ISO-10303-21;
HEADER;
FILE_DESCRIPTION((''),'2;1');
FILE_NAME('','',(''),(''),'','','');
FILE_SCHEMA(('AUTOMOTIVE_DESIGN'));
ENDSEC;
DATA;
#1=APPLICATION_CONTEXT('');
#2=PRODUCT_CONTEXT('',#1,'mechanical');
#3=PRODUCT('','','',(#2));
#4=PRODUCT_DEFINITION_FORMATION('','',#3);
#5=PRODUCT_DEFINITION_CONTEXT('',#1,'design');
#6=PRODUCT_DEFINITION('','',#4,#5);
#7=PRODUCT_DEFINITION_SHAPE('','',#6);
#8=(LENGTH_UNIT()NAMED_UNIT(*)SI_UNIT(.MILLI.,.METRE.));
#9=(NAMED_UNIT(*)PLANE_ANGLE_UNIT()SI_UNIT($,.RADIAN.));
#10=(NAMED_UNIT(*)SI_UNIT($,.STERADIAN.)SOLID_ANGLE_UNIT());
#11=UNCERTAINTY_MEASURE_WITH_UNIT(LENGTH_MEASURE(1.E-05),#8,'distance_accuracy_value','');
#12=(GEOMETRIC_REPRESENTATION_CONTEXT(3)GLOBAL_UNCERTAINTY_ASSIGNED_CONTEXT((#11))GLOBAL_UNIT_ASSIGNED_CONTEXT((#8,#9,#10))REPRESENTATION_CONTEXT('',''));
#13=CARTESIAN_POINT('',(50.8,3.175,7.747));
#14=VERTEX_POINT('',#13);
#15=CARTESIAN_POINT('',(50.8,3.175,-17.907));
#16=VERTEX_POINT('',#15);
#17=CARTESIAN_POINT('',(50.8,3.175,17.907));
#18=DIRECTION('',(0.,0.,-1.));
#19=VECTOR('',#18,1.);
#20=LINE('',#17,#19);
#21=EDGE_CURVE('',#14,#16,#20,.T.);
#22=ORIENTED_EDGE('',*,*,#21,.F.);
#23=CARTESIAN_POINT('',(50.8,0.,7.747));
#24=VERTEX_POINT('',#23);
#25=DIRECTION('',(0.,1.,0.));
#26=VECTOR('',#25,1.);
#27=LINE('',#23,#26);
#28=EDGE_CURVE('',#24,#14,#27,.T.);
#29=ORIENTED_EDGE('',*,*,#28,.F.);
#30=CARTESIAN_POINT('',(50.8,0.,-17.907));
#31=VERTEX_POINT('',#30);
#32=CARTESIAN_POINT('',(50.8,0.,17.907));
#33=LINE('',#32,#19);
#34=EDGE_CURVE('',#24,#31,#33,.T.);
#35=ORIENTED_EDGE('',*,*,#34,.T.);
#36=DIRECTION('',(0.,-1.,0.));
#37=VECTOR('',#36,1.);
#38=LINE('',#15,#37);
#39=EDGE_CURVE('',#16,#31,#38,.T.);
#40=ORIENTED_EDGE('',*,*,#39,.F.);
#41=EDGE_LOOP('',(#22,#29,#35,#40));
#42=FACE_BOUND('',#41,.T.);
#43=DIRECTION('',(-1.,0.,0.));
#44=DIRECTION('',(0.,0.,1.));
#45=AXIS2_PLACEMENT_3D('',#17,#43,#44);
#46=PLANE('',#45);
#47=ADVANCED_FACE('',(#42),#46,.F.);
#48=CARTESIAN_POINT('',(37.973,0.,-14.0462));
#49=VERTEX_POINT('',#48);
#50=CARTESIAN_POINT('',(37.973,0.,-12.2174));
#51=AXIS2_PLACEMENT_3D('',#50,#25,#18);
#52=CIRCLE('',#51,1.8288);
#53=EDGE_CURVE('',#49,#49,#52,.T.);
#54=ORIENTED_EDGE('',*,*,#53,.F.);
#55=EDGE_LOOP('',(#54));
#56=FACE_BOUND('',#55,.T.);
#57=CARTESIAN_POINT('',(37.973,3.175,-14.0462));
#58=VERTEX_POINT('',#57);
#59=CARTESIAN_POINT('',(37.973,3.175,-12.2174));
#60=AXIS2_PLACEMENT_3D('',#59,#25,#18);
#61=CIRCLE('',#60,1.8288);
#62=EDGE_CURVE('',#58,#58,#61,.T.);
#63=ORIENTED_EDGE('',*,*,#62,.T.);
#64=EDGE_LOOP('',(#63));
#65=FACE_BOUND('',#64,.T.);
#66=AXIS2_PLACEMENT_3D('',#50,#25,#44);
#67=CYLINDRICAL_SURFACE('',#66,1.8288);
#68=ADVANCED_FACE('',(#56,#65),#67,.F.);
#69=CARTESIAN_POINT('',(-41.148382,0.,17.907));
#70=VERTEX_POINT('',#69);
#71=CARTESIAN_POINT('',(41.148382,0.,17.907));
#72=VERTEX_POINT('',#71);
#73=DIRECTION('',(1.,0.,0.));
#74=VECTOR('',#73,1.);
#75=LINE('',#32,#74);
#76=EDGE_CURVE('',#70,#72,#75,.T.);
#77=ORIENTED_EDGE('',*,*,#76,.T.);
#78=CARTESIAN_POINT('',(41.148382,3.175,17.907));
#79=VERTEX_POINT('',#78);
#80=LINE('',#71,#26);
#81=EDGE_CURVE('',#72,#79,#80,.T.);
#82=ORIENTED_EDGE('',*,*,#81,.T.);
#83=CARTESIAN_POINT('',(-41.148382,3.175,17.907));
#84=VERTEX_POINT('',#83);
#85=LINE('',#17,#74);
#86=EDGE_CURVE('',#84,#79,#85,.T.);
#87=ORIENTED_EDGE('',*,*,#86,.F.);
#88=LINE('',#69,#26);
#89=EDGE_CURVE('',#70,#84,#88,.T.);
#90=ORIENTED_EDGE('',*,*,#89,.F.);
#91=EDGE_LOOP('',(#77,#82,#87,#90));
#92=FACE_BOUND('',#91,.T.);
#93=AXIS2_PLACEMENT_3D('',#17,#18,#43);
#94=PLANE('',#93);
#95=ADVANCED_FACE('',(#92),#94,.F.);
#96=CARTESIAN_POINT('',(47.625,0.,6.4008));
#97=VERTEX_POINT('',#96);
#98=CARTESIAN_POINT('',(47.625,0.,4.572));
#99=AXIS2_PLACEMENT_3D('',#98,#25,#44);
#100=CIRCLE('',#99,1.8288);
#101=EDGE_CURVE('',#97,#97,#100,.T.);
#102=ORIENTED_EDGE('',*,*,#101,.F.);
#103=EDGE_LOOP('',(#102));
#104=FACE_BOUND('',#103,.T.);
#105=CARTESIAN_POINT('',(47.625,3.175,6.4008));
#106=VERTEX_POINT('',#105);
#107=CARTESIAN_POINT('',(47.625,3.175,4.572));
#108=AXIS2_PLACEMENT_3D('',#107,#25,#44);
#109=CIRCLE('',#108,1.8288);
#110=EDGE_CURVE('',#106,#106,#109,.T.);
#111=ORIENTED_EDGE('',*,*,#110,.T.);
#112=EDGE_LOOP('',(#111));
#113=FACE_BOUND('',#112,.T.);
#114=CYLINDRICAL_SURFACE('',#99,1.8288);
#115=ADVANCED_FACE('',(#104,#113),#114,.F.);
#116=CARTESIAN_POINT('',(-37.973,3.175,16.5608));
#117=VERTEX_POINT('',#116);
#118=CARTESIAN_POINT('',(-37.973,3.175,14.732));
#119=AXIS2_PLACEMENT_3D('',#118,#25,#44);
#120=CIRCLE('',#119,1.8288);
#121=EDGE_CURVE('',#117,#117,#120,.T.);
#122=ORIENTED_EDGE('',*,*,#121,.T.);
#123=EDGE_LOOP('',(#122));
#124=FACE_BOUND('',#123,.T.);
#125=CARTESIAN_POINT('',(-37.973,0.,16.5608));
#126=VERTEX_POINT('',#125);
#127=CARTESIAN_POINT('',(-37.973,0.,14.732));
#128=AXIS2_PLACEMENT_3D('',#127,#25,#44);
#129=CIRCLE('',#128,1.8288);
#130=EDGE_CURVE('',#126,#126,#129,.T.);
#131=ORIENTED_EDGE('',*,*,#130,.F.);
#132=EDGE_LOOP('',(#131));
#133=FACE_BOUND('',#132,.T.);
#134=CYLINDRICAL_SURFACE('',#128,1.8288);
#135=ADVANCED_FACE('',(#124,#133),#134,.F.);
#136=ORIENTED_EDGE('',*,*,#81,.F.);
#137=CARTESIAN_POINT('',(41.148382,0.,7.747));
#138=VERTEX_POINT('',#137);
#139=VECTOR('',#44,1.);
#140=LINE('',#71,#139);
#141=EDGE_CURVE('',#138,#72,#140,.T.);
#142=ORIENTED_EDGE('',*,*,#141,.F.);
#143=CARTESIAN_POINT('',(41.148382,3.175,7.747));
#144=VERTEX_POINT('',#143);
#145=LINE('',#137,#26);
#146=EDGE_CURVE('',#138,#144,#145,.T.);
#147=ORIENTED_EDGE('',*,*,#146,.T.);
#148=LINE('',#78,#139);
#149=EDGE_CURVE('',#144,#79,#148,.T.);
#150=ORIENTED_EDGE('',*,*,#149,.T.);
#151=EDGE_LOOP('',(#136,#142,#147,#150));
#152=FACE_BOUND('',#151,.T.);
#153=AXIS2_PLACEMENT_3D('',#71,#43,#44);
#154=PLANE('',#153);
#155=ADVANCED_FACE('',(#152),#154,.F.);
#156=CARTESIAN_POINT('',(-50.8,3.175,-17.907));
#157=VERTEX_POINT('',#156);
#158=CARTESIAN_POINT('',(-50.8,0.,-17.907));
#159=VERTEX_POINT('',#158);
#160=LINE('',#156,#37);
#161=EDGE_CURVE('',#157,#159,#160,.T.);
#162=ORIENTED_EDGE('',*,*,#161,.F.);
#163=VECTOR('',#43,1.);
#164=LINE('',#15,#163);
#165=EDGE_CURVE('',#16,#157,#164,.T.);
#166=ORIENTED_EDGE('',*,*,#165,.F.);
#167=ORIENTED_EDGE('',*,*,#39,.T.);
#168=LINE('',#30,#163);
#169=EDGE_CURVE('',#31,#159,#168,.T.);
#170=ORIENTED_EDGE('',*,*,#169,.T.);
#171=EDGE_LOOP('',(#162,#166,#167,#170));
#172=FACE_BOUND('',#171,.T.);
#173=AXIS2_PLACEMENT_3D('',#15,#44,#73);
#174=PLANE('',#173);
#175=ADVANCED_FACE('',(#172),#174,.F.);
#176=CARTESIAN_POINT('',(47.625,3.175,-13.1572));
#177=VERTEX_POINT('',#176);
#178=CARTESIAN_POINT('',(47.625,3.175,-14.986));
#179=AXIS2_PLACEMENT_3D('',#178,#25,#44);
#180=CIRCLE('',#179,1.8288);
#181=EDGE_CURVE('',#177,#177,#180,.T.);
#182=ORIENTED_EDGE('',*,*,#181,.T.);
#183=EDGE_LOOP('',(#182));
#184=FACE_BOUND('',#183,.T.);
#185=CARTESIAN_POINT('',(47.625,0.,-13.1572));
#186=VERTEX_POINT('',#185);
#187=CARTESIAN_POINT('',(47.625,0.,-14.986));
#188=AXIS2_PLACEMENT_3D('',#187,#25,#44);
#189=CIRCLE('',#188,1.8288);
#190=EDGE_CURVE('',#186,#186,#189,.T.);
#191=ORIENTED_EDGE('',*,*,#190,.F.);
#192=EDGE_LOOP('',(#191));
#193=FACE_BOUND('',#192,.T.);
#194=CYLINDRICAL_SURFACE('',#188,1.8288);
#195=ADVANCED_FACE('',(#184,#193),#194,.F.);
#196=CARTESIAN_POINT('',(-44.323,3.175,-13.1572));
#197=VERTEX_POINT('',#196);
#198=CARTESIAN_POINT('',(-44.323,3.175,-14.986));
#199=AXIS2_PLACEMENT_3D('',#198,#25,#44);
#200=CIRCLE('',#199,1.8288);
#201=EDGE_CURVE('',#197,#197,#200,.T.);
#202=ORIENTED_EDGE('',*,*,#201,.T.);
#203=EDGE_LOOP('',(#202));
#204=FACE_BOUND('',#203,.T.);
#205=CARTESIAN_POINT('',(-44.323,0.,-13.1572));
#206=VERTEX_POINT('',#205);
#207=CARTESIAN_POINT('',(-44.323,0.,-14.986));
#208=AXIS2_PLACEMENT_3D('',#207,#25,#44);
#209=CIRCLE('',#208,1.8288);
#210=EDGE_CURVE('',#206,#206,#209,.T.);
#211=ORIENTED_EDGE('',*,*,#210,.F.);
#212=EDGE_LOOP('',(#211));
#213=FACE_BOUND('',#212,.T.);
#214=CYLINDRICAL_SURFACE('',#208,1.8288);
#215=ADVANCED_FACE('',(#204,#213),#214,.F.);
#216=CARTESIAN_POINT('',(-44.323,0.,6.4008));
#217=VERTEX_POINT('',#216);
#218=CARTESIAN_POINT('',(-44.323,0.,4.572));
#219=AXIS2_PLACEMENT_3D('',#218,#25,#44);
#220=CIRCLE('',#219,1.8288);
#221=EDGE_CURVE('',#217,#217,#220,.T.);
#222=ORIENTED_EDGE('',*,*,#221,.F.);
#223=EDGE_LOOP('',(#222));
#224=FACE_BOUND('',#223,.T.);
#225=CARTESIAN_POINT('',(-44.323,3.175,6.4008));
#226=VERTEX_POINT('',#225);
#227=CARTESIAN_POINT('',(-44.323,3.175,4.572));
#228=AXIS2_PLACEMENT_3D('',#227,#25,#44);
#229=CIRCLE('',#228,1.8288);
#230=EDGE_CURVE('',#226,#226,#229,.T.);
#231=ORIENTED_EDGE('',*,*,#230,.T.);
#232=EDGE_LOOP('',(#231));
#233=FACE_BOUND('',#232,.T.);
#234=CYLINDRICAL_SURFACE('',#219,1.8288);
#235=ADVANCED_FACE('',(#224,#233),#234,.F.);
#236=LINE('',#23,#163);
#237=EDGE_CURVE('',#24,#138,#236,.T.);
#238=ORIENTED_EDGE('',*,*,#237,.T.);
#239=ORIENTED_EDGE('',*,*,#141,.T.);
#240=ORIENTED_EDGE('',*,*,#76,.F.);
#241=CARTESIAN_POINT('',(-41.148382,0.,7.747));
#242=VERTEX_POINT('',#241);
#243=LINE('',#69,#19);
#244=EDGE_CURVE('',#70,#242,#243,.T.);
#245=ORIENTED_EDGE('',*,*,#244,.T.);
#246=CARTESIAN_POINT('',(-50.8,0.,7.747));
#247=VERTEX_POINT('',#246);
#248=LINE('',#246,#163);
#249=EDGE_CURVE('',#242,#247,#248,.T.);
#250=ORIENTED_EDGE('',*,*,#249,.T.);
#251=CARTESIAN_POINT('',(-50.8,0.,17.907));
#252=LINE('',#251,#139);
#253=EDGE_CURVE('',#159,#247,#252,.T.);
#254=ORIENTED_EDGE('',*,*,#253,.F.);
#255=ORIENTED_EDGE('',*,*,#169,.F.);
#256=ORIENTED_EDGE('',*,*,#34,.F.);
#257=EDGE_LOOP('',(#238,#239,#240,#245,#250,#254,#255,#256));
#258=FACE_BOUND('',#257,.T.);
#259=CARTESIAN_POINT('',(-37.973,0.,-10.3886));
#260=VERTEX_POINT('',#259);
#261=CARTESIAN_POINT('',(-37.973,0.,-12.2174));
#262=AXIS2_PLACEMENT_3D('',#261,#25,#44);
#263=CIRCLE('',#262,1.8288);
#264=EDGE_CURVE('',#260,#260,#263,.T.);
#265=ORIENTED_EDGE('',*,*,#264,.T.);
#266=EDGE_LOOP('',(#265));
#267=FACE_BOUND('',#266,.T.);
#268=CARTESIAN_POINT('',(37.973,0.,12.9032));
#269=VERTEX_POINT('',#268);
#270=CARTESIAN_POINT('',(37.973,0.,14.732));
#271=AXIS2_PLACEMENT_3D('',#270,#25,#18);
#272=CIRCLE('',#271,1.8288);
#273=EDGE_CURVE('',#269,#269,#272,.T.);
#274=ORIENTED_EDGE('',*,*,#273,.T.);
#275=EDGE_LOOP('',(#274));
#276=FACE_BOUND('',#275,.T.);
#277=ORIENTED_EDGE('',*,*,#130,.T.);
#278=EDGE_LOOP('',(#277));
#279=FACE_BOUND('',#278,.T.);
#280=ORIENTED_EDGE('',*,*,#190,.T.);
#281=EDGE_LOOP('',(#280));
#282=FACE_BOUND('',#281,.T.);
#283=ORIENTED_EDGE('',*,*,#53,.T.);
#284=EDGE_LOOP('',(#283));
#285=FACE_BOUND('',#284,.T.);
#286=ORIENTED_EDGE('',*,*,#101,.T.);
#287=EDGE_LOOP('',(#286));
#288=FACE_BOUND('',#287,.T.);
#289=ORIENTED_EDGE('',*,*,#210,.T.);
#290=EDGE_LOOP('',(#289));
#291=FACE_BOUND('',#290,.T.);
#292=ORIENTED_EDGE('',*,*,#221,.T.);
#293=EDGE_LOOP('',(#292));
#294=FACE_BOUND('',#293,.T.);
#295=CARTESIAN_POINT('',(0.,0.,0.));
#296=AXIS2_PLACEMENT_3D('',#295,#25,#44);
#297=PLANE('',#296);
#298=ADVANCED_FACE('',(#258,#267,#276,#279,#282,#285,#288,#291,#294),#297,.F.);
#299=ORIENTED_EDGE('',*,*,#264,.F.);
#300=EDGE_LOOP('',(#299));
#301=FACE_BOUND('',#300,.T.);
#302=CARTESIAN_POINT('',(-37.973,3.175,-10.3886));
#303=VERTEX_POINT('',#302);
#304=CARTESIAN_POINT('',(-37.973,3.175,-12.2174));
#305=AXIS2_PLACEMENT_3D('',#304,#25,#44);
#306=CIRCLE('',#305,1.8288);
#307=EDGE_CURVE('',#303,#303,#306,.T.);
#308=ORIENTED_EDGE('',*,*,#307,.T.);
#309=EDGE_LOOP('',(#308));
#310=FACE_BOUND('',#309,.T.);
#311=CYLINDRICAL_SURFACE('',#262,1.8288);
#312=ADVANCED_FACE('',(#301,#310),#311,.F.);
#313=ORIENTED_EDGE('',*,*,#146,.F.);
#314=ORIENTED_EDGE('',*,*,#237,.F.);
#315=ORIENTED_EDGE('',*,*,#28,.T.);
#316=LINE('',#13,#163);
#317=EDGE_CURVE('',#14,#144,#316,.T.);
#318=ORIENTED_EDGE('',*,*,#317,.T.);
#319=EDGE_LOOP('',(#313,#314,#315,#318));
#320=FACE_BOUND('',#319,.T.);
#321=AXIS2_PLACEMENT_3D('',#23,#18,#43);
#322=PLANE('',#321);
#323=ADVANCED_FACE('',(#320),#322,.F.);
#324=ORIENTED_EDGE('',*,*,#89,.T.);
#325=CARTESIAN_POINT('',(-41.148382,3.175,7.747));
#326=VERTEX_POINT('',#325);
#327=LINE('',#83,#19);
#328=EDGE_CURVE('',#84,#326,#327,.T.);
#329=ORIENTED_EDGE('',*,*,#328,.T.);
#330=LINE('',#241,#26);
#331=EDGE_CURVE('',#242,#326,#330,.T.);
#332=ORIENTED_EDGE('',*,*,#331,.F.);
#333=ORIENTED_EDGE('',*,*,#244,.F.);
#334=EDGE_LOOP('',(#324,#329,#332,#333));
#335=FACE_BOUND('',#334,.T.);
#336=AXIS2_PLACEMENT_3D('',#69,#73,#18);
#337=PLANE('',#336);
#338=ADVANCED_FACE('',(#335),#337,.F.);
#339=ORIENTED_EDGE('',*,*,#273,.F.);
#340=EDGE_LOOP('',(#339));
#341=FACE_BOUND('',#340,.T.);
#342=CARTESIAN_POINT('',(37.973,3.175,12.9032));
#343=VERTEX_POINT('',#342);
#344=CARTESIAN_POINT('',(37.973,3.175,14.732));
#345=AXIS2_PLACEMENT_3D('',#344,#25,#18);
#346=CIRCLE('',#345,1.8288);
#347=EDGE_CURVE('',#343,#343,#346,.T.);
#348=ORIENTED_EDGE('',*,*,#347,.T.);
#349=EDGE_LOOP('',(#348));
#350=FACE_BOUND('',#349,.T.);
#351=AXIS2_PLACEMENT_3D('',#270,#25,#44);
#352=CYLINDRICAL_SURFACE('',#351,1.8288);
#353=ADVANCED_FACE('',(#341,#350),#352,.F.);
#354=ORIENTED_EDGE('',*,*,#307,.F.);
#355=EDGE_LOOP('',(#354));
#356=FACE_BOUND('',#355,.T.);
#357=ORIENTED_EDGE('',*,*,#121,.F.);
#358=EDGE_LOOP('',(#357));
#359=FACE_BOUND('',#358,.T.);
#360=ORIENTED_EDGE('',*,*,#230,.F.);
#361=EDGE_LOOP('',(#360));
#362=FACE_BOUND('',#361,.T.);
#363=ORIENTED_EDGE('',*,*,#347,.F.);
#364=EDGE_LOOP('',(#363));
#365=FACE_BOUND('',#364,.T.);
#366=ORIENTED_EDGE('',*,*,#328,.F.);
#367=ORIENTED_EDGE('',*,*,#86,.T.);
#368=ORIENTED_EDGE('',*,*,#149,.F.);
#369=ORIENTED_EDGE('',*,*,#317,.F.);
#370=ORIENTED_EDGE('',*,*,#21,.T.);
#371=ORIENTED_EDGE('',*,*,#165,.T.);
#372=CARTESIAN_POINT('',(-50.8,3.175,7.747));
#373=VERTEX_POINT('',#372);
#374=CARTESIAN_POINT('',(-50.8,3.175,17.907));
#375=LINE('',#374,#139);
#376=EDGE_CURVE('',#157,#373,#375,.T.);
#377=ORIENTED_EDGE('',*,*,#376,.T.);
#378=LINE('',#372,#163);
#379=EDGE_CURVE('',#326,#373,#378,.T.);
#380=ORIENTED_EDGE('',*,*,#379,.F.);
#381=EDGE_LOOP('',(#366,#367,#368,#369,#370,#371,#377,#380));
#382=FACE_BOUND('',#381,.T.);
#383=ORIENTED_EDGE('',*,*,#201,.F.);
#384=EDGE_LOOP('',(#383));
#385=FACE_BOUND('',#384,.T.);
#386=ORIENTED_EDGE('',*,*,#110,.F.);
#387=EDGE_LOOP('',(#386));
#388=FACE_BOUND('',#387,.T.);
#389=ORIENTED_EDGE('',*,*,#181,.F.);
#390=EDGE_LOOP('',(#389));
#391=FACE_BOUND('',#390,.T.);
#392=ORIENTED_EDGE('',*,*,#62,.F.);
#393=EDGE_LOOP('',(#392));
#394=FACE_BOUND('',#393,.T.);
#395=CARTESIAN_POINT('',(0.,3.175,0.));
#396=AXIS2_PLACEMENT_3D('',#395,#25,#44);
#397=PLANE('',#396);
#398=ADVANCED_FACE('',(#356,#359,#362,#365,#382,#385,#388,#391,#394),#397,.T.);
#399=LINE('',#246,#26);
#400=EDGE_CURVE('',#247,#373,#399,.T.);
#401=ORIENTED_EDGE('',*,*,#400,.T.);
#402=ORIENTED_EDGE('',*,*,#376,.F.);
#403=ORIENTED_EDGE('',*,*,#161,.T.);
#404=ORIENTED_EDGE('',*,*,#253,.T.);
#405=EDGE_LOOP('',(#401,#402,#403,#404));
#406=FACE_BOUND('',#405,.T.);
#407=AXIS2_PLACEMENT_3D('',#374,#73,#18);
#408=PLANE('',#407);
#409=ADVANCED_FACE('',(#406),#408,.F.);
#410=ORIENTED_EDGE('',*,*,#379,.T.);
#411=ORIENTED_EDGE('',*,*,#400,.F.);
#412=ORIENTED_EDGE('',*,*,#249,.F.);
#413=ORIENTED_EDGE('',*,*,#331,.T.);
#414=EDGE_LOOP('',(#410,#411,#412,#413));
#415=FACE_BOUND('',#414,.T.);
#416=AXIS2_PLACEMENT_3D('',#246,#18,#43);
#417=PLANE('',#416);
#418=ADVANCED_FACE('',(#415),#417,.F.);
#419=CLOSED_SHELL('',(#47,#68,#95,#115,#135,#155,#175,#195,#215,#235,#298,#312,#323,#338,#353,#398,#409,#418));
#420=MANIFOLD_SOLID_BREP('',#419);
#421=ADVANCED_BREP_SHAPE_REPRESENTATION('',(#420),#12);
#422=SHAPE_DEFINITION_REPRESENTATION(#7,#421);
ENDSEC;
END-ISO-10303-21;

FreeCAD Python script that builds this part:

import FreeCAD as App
import Part
import Sketcher
from FreeCAD import Vector
Q = App.Units.Quantity


def add_polygon(sketch, points):
    """Adds a closed chain of lines whose ends are joined by coincident constraints."""
    first, n = sketch.GeometryCount, len(points)
    for a, b in zip(points, points[1:] + points[:1]):
        sketch.addGeometry(Part.LineSegment(App.Vector(*a, 0), App.Vector(*b, 0)), False)
    for i in range(n):
        sketch.addConstraint(Sketcher.Constraint("Coincident", first + i, 2, first + (i + 1) % n, 1))

doc = App.newDocument("Part")
body = doc.addObject("PartDesign::Body", "Body")

# Sketch on XZ plane
sketch1 = body.newObject("Sketcher::SketchObject", "Sketch")
sketch1.AttachmentSupport = (doc.getObject("XZ_Plane"), [""])
sketch1.MapMode = "FlatFace"
add_polygon(sketch1, [(-51, -18), (-51, 18), (51, 18), (51, -18)])  # lines 0-3
sketch1.addConstraint([
    Sketcher.Constraint("Vertical", 0),
    Sketcher.Constraint("Horizontal", 1),
    Sketcher.Constraint("Vertical", 2),
    Sketcher.Constraint("Horizontal", 3),
    Sketcher.Constraint("Symmetric", 0, 2, 2, 2, -1, 1),
    Sketcher.Constraint("DistanceX", 1, 1, 1, 2, Q("4 in")),
    Sketcher.Constraint("DistanceY", 0, 1, 0, 2, Q("1.41 in")),
])
pad1 = body.newObject("PartDesign::Pad", "Pad")
pad1.Profile = sketch1
pad1.Length = Q("0.125 in")
pad1.Reversed = True

# Sketch on XZ plane
sketch2 = body.newObject("Sketcher::SketchObject", "Sketch001")
sketch2.AttachmentSupport = (doc.getObject("XZ_Plane"), [""])
sketch2.MapMode = "FlatFace"
sketch2.AttachmentOffset = App.Placement(Vector(0, 0, -0.125 * 25.4), App.Rotation())
sketch2.addGeometry([
    Part.Circle(Vector(47.6, -15, 0), Vector(0, 0, 1), 1.8),
    Part.Circle(Vector(47.6, 4.6, 0), Vector(0, 0, 1), 1.8),
    Part.Circle(Vector(-44.3, -15, 0), Vector(0, 0, 1), 1.8),
    Part.Circle(Vector(-44.3, 4.6, 0), Vector(0, 0, 1), 1.8),
], False)
sketch2.addConstraint([
    Sketcher.Constraint("Equal", 0, 1),
    Sketcher.Constraint("Equal", 1, 2),
    Sketcher.Constraint("Equal", 2, 3),
    Sketcher.Constraint("Horizontal", 0, 3, 2, 3),
    Sketcher.Constraint("Horizontal", 1, 3, 3, 3),
    Sketcher.Constraint("Vertical", 0, 3, 1, 3),
    Sketcher.Constraint("Vertical", 2, 3, 3, 3),
    Sketcher.Constraint("Diameter", 0, Q("0.144 in")),
    Sketcher.Constraint("DistanceY", 0, 3, -1, 1, Q("0.59 in")),
    Sketcher.Constraint("DistanceY", -1, 1, 1, 3, Q("0.18 in")),
    Sketcher.Constraint("DistanceX", 2, 3, 0, 3, Q("3.62 in")),
    Sketcher.Constraint("DistanceX", -1, 1, 0, 3, Q("1.875 in")),
])
pocket1 = body.newObject("PartDesign::Pocket", "Pocket")
pocket1.Profile = sketch2
pocket1.Type = "ThroughAll"
pocket1.Reversed = True

# Sketch on XZ plane
sketch3 = body.newObject("Sketcher::SketchObject", "Sketch002")
sketch3.AttachmentSupport = (doc.getObject("XZ_Plane"), [""])
sketch3.MapMode = "FlatFace"
sketch3.AttachmentOffset = App.Placement(Vector(0, 0, -0.125 * 25.4), App.Rotation())
sketch3.addGeometry([
    Part.Circle(Vector(-38, 14.7, 0), Vector(0, 0, 1), 1.8),
    Part.Circle(Vector(-38, -12.2, 0), Vector(0, 0, 1), 1.8),
    Part.Circle(Vector(38, 14.7, 0), Vector(0, 0, 1), 1.8),
    Part.Circle(Vector(38, -12.2, 0), Vector(0, 0, 1), 1.8),
], False)
sketch3.addConstraint([
    Sketcher.Constraint("Equal", 0, 1),
    Sketcher.Constraint("Equal", 1, 2),
    Sketcher.Constraint("Equal", 2, 3),
    Sketcher.Constraint("Symmetric", 0, 3, 2, 3, -2),
    Sketcher.Constraint("Symmetric", 1, 3, 3, 3, -2),
    Sketcher.Constraint("Vertical", 0, 3, 1, 3),
    Sketcher.Constraint("Diameter", 0, Q("0.144 in")),
    Sketcher.Constraint("DistanceY", -1, 1, 0, 3, Q("0.58 in")),
    Sketcher.Constraint("DistanceX", 0, 3, 2, 3, Q("2.99 in")),
    Sketcher.Constraint("DistanceY", 1, 3, -1, 1, Q("0.481 in")),
])
pocket2 = body.newObject("PartDesign::Pocket", "Pocket001")
pocket2.Profile = sketch3
pocket2.Type = "ThroughAll"
pocket2.Reversed = True

# Sketch on XZ plane
sketch4 = body.newObject("Sketcher::SketchObject", "Sketch003")
sketch4.AttachmentSupport = (doc.getObject("XZ_Plane"), [""])
sketch4.MapMode = "FlatFace"
sketch4.AttachmentOffset = App.Placement(Vector(0, 0, -0.125 * 25.4), App.Rotation())
add_polygon(sketch4, [(41, 8), (41, 18), (51, 18), (51, 8)])  # lines 0-3
add_polygon(sketch4, [(-51, 8), (-51, 18), (-41, 18), (-41, 8)])  # lines 4-7
sketch4.addConstraint([
    Sketcher.Constraint("Vertical", 0),
    Sketcher.Constraint("Horizontal", 1),
    Sketcher.Constraint("Vertical", 2),
    Sketcher.Constraint("Horizontal", 3),
    Sketcher.Constraint("Vertical", 4),
    Sketcher.Constraint("Horizontal", 5),
    Sketcher.Constraint("Vertical", 6),
    Sketcher.Constraint("Horizontal", 7),
    Sketcher.Constraint("Symmetric", 1, 2, 4, 2, -2),
    Sketcher.Constraint("Symmetric", 3, 2, 6, 2, -2),
    Sketcher.Constraint("DistanceY", 0, 1, 0, 2, Q("0.4 in")),
    Sketcher.Constraint("DistanceX", -1, 1, 1, 2, Q("2 in")),
    Sketcher.Constraint("DistanceY", -1, 1, 0, 2, Q("0.705 in")),
    Sketcher.Constraint("DistanceX", 1, 1, 1, 2, Q("9.651618 mm")),
])
pocket3 = body.newObject("PartDesign::Pocket", "Pocket002")
pocket3.Profile = sketch4
pocket3.Type = "ThroughAll"
pocket3.Reversed = True

doc.recompute()
